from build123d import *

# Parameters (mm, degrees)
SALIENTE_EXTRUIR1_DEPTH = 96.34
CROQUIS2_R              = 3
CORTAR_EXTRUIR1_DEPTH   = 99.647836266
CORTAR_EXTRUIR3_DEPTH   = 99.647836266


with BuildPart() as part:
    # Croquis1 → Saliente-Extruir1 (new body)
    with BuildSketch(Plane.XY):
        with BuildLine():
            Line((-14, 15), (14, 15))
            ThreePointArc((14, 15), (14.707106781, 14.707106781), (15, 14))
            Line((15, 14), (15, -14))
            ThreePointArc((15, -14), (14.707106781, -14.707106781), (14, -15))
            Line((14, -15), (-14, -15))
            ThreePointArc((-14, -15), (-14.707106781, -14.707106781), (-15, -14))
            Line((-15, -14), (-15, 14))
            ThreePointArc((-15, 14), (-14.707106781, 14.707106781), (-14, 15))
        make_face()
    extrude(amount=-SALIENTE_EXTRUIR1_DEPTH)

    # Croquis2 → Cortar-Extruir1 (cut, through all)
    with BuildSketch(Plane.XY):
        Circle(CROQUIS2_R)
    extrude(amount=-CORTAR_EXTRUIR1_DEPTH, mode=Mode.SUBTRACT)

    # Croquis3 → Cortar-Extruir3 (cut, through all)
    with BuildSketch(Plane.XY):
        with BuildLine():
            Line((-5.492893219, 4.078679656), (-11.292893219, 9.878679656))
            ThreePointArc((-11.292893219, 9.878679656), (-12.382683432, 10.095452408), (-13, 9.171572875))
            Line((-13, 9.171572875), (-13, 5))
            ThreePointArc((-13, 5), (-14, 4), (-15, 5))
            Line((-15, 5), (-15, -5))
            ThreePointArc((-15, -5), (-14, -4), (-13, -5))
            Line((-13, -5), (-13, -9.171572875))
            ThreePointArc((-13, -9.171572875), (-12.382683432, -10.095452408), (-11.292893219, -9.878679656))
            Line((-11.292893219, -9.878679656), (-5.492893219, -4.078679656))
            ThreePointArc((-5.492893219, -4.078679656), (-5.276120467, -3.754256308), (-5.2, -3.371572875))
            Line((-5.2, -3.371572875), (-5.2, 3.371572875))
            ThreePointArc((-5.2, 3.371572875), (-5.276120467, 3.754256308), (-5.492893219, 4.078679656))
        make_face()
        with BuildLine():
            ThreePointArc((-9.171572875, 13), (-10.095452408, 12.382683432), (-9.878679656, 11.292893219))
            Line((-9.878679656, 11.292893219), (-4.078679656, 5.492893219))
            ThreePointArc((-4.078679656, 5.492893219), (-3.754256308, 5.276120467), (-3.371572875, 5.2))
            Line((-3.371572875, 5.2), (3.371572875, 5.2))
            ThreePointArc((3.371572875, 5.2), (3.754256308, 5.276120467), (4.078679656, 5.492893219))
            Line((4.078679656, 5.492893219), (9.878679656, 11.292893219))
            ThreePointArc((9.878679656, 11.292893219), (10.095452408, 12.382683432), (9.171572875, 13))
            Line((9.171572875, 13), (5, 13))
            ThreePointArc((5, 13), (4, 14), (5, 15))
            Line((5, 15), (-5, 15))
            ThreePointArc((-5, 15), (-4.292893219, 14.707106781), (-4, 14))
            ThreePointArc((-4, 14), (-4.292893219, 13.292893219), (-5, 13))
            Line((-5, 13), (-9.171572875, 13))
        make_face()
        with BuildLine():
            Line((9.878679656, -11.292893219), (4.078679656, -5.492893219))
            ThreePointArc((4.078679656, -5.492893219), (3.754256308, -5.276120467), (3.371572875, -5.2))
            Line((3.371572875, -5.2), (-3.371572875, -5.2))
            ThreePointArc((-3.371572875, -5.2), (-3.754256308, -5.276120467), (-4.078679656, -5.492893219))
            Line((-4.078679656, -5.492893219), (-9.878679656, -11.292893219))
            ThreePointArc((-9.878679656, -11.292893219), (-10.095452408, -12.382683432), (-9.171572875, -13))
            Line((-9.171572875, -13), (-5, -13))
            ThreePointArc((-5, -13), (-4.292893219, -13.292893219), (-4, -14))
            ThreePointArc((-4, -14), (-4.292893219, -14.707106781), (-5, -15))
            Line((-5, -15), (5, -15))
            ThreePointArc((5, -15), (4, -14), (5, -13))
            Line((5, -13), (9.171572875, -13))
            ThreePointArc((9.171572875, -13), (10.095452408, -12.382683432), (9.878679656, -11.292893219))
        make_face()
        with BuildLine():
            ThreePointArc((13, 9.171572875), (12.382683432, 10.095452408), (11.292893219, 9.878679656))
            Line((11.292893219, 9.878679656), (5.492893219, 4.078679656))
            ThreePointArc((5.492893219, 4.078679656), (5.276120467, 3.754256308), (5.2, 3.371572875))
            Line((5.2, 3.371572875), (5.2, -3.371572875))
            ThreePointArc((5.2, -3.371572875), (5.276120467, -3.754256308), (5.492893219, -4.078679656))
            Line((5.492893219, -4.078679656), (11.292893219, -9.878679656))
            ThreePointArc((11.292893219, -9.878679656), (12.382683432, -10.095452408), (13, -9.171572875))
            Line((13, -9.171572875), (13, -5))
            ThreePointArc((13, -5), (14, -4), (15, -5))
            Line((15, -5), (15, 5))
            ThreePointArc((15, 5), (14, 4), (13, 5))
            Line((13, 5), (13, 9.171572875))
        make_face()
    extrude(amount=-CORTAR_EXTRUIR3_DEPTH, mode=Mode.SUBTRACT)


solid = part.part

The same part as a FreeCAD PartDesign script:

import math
import FreeCAD as App
import Part
import Sketcher

V = App.Vector
Q = App.Units.Quantity

doc = App.newDocument("Part")
body = doc.addObject("PartDesign::Body", "Body")

# Sketch on XY plane
sketch1 = body.newObject("Sketcher::SketchObject", "Sketch")
sketch1.AttachmentSupport = (doc.getObject("XY_Plane"), [""])
sketch1.MapMode = "FlatFace"
sketch1.addGeometry([
    Part.LineSegment(V(14, 15, 0), V(-14, 15, 0)),  # 0
    Part.ArcOfCircle(Part.Circle(V(-14, 14, 0), V(0, 0, 1), 1), math.radians(90), math.radians(180)),  # 1
    Part.LineSegment(V(-15, 14, 0), V(-15, -14, 0)),  # 2
    Part.ArcOfCircle(Part.Circle(V(-14, -14, 0), V(0, 0, 1), 1), math.radians(-180), math.radians(-90)),  # 3
    Part.LineSegment(V(-14, -15, 0), V(14, -15, 0)),  # 4
    Part.ArcOfCircle(Part.Circle(V(14, -14, 0), V(0, 0, 1), 1), math.radians(-90), math.radians(0)),  # 5
    Part.LineSegment(V(15, -14, 0), V(15, 14, 0)),  # 6
    Part.ArcOfCircle(Part.Circle(V(14, 14, 0), V(0, 0, 1), 1), math.radians(0), math.radians(90)),  # 7
], False)
sketch1.addConstraint([
    Sketcher.Constraint("Tangent", 0, 2, 1, 1),
    Sketcher.Constraint("Tangent", 1, 2, 2, 1),
    Sketcher.Constraint("Tangent", 2, 2, 3, 1),
    Sketcher.Constraint("Tangent", 3, 2, 4, 1),
    Sketcher.Constraint("Tangent", 4, 2, 5, 1),
    Sketcher.Constraint("Tangent", 5, 2, 6, 1),
    Sketcher.Constraint("Tangent", 6, 2, 7, 1),
    Sketcher.Constraint("Tangent", 7, 2, 0, 1),
    Sketcher.Constraint("Horizontal", 0),
    Sketcher.Constraint("Vertical", 2),
    Sketcher.Constraint("Horizontal", 4),
    Sketcher.Constraint("Vertical", 6),
    Sketcher.Constraint("Equal", 1, 3),
    Sketcher.Constraint("Equal", 3, 5),
    Sketcher.Constraint("Equal", 5, 7),
    Sketcher.Constraint("Symmetric", 1, 3, 5, 3, -1, 1),
    Sketcher.Constraint("Equal", 4, 2),
    Sketcher.Constraint("Radius", 1, Q("1 mm")),
    Sketcher.Constraint("DistanceX", 0, 2, 0, 1, Q("28 mm")),
])
pad1 = body.newObject("PartDesign::Pad", "Pad")
pad1.Profile = sketch1
pad1.Length = 96.34
pad1.Reversed = True

# Sketch on XY plane
sketch2 = body.newObject("Sketcher::SketchObject", "Sketch001")
sketch2.AttachmentSupport = (doc.getObject("XY_Plane"), [""])
sketch2.MapMode = "FlatFace"
sketch2.addGeometry(Part.Circle(V(0, 0, 0), V(0, 0, 1), 3), False)
sketch2.addConstraint([
    Sketcher.Constraint("Coincident", 0, 3, -1, 1),
    Sketcher.Constraint("Diameter", 0, Q("6 mm")),
])
pocket1 = body.newObject("PartDesign::Pocket", "Pocket")
pocket1.Profile = sketch2
pocket1.Type = "ThroughAll"

# Sketch on XY plane
sketch3 = body.newObject("Sketcher::SketchObject", "Sketch002")
sketch3.AttachmentSupport = (doc.getObject("XY_Plane"), [""])
sketch3.MapMode = "FlatFace"
sketch3.addGeometry([
    Part.LineSegment(V(-5.5, 4.1, 0), V(-11.3, 9.9, 0)),  # 0
    Part.ArcOfCircle(Part.Circle(V(-12, 9.2, 0), V(0, 0, 1), 1), math.radians(45), math.radians(180)),  # 1
    Part.LineSegment(V(-13, 9.2, 0), V(-13, 5, 0)),  # 2
    Part.ArcOfCircle(Part.Circle(V(-14, 5, 0), V(0, 0, 1), 1), math.radians(180), math.radians(360)),  # 3
    Part.LineSegment(V(-15, 5, 0), V(-15, -5, 0)),  # 4
    Part.ArcOfCircle(Part.Circle(V(-14, -5, 0), V(0, 0, 1), 1), math.radians(0), math.radians(180)),  # 5
    Part.LineSegment(V(-13, -5, 0), V(-13, -9.2, 0)),  # 6
    Part.ArcOfCircle(Part.Circle(V(-12, -9.2, 0), V(0, 0, 1), 1), math.radians(180), math.radians(315)),  # 7
    Part.LineSegment(V(-11.3, -9.9, 0), V(-5.5, -4.1, 0)),  # 8
    Part.ArcOfCircle(Part.Circle(V(-6.2, -3.4, 0), V(0, 0, 1), 1), math.radians(-45), math.radians(0)),  # 9
    Part.LineSegment(V(-5.2, -3.4, 0), V(-5.2, 3.4, 0)),  # 10
    Part.ArcOfCircle(Part.Circle(V(-6.2, 3.4, 0), V(0, 0, 1), 1), math.radians(0), math.radians(45)),  # 11
    Part.ArcOfCircle(Part.Circle(V(-9.2, 12, 0), V(0, 0, 1), 1), math.radians(90), math.radians(225)),  # 12
    Part.LineSegment(V(-9.9, 11.3, 0), V(-4.1, 5.5, 0)),  # 13
    Part.ArcOfCircle(Part.Circle(V(-3.4, 6.2, 0), V(0, 0, 1), 1), math.radians(-135), math.radians(-90)),  # 14
    Part.LineSegment(V(-3.4, 5.2, 0), V(3.4, 5.2, 0)),  # 15
    Part.ArcOfCircle(Part.Circle(V(3.4, 6.2, 0), V(0, 0, 1), 1), math.radians(-90), math.radians(-45)),  # 16
    Part.LineSegment(V(4.1, 5.5, 0), V(9.9, 11.3, 0)),  # 17
    Part.ArcOfCircle(Part.Circle(V(9.2, 12, 0), V(0, 0, 1), 1), math.radians(-45), math.radians(90)),  # 18
    Part.LineSegment(V(9.2, 13, 0), V(5, 13, 0)),  # 19
    Part.ArcOfCircle(Part.Circle(V(5, 14, 0), V(0, 0, 1), 1), math.radians(90), math.radians(270)),  # 20
    Part.LineSegment(V(5, 15, 0), V(-5, 15, 0)),  # 21
    Part.ArcOfCircle(Part.Circle(V(-5, 14, 0), V(0, 0, 1), 1), math.radians(0), math.radians(90)),  # 22
    Part.ArcOfCircle(Part.Circle(V(-5, 14, 0), V(0, 0, 1), 1), math.radians(-90), math.radians(0)),  # 23
    Part.LineSegment(V(-5, 13, 0), V(-9.2, 13, 0)),  # 24
    Part.LineSegment(V(9.9, -11.3, 0), V(4.1, -5.5, 0)),  # 25
    Part.ArcOfCircle(Part.Circle(V(3.4, -6.2, 0), V(0, 0, 1), 1), math.radians(45), math.radians(90)),  # 26
    Part.LineSegment(V(3.4, -5.2, 0), V(-3.4, -5.2, 0)),  # 27
    Part.ArcOfCircle(Part.Circle(V(-3.4, -6.2, 0), V(0, 0, 1), 1), math.radians(90), math.radians(135)),  # 28
    Part.LineSegment(V(-4.1, -5.5, 0), V(-9.9, -11.3, 0)),  # 29
    Part.ArcOfCircle(Part.Circle(V(-9.2, -12, 0), V(0, 0, 1), 1), math.radians(135), math.radians(270)),  # 30
    Part.LineSegment(V(-9.2, -13, 0), V(-5, -13, 0)),  # 31
    Part.ArcOfCircle(Part.Circle(V(-5, -14, 0), V(0, 0, 1), 1), math.radians(0), math.radians(90)),  # 32
    Part.ArcOfCircle(Part.Circle(V(-5, -14, 0), V(0, 0, 1), 1), math.radians(-90), math.radians(0)),  # 33
    Part.LineSegment(V(-5, -15, 0), V(5, -15, 0)),  # 34
    Part.ArcOfCircle(Part.Circle(V(5, -14, 0), V(0, 0, 1), 1), math.radians(90), math.radians(270)),  # 35
    Part.LineSegment(V(5, -13, 0), V(9.2, -13, 0)),  # 36
    Part.ArcOfCircle(Part.Circle(V(9.2, -12, 0), V(0, 0, 1), 1), math.radians(-90), math.radians(45)),  # 37
    Part.ArcOfCircle(Part.Circle(V(12, 9.2, 0), V(0, 0, 1), 1), math.radians(0), math.radians(135)),  # 38
    Part.LineSegment(V(11.3, 9.9, 0), V(5.5, 4.1, 0)),  # 39
    Part.ArcOfCircle(Part.Circle(V(6.2, 3.4, 0), V(0, 0, 1), 1), math.radians(135), math.radians(180)),  # 40
    Part.LineSegment(V(5.2, 3.4, 0), V(5.2, -3.4, 0)),  # 41
    Part.ArcOfCircle(Part.Circle(V(6.2, -3.4, 0), V(0, 0, 1), 1), math.radians(180), math.radians(225)),  # 42
    Part.LineSegment(V(5.5, -4.1, 0), V(11.3, -9.9, 0)),  # 43
    Part.ArcOfCircle(Part.Circle(V(12, -9.2, 0), V(0, 0, 1), 1), math.radians(-135), math.radians(0)),  # 44
    Part.LineSegment(V(13, -9.2, 0), V(13, -5, 0)),  # 45
    Part.ArcOfCircle(Part.Circle(V(14, -5, 0), V(0, 0, 1), 1), math.radians(0), math.radians(180)),  # 46
    Part.LineSegment(V(15, -5, 0), V(15, 5, 0)),  # 47
    Part.ArcOfCircle(Part.Circle(V(14, 5, 0), V(0, 0, 1), 1), math.radians(180), math.radians(360)),  # 48
    Part.LineSegment(V(13, 5, 0), V(13, 9.2, 0)),  # 49
], False)
sketch3.addConstraint([
    Sketcher.Constraint("Tangent", 0, 2, 1, 1),
    Sketcher.Constraint("Tangent", 1, 2, 2, 1),
    Sketcher.Constraint("Tangent", 2, 2, 3, 2),
    Sketcher.Constraint("Tangent", 3, 1, 4, 1),
    Sketcher.Constraint("Tangent", 4, 2, 5, 2),
    Sketcher.Constraint("Tangent", 5, 1, 6, 1),
    Sketcher.Constraint("Tangent", 6, 2, 7, 1),
    Sketcher.Constraint("Tangent", 7, 2, 8, 1),
    Sketcher.Constraint("Tangent", 8, 2, 9, 1),
    Sketcher.Constraint("Tangent", 9, 2, 10, 1),
    Sketcher.Constraint("Tangent", 10, 2, 11, 1),
    Sketcher.Constraint("Tangent", 11, 2, 0, 1),
    Sketcher.Constraint("Tangent", 12, 2, 13, 1),
    Sketcher.Constraint("Tangent", 13, 2, 14, 1),
    Sketcher.Constraint("Tangent", 14, 2, 15, 1),
    Sketcher.Constraint("Tangent", 15, 2, 16, 1),
    Sketcher.Constraint("Tangent", 16, 2, 17, 1),
    Sketcher.Constraint("Tangent", 17, 2, 18, 1),
    Sketcher.Constraint("Tangent", 18, 2, 19, 1),
    Sketcher.Constraint("Tangent", 19, 2, 20, 2),
    Sketcher.Constraint("Tangent", 20, 1, 21, 1),
    Sketcher.Constraint("Tangent", 21, 2, 22, 2),
    Sketcher.Constraint("Tangent", 22, 1, 23, 2),
    Sketcher.Constraint("Tangent", 23, 1, 24, 1),
    Sketcher.Constraint("Tangent", 24, 2, 12, 1),
    Sketcher.Constraint("Tangent", 25, 2, 26, 1),
    Sketcher.Constraint("Tangent", 26, 2, 27, 1),
    Sketcher.Constraint("Tangent", 27, 2, 28, 1),
    Sketcher.Constraint("Tangent", 28, 2, 29, 1),
    Sketcher.Constraint("Tangent", 29, 2, 30, 1),
    Sketcher.Constraint("Tangent", 30, 2, 31, 1),
    Sketcher.Constraint("Tangent", 31, 2, 32, 2),
    Sketcher.Constraint("Tangent", 32, 1, 33, 2),
    Sketcher.Constraint("Tangent", 33, 1, 34, 1),
    Sketcher.Constraint("Tangent", 34, 2, 35, 2),
    Sketcher.Constraint("Tangent", 35, 1, 36, 1),
    Sketcher.Constraint("Tangent", 36, 2, 37, 1),
    Sketcher.Constraint("Tangent", 37, 2, 25, 1),
    Sketcher.Constraint("Tangent", 38, 2, 39, 1),
    Sketcher.Constraint("Tangent", 39, 2, 40, 1),
    Sketcher.Constraint("Tangent", 40, 2, 41, 1),
    Sketcher.Constraint("Tangent", 41, 2, 42, 1),
    Sketcher.Constraint("Tangent", 42, 2, 43, 1),
    Sketcher.Constraint("Tangent", 43, 2, 44, 1),
    Sketcher.Constraint("Tangent", 44, 2, 45, 1),
    Sketcher.Constraint("Tangent", 45, 2, 46, 2),
    Sketcher.Constraint("Tangent", 46, 1, 47, 1),
    Sketcher.Constraint("Tangent", 47, 2, 48, 2),
    Sketcher.Constraint("Tangent", 48, 1, 49, 1),
    Sketcher.Constraint("Tangent", 49, 2, 38, 1),
    Sketcher.Constraint("Vertical", 2),
    Sketcher.Constraint("Vertical", 4),
    Sketcher.Constraint("Vertical", 6),
    Sketcher.Constraint("Vertical", 10),
    Sketcher.Constraint("Horizontal", 15),
    Sketcher.Constraint("Horizontal", 19),
    Sketcher.Constraint("Horizontal", 21),
    Sketcher.Constraint("Horizontal", 24),
    Sketcher.Constraint("Horizontal", 27),
    Sketcher.Constraint("Horizontal", 31),
    Sketcher.Constraint("Horizontal", 34),
    Sketcher.Constraint("Horizontal", 36),
    Sketcher.Constraint("Vertical", 41),
    Sketcher.Constraint("Vertical", 45),
    Sketcher.Constraint("Vertical", 47),
    Sketcher.Constraint("Vertical", 49),
    Sketcher.Constraint("Equal", 1, 3),
    Sketcher.Constraint("Equal", 3, 5),
    Sketcher.Constraint("Equal", 5, 7),
    Sketcher.Constraint("Equal", 7, 9),
    Sketcher.Constraint("Equal", 9, 11),
    Sketcher.Constraint("Equal", 11, 12),
    Sketcher.Constraint("Equal", 12, 14),
    Sketcher.Constraint("Equal", 14, 16),
    Sketcher.Constraint("Equal", 16, 18),
    Sketcher.Constraint("Equal", 18, 20),
    Sketcher.Constraint("Equal", 20, 22),
    Sketcher.Constraint("Equal", 22, 23),
    Sketcher.Constraint("Equal", 23, 26),
    Sketcher.Constraint("Equal", 26, 28),
    Sketcher.Constraint("Equal", 28, 30),
    Sketcher.Constraint("Equal", 30, 32),
    Sketcher.Constraint("Equal", 32, 33),
    Sketcher.Constraint("Equal", 33, 35),
    Sketcher.Constraint("Equal", 35, 37),
    Sketcher.Constraint("Equal", 37, 38),
    Sketcher.Constraint("Equal", 38, 40),
    Sketcher.Constraint("Equal", 40, 42),
    Sketcher.Constraint("Equal", 42, 44),
    Sketcher.Constraint("Equal", 44, 46),
    Sketcher.Constraint("Equal", 46, 48),
    Sketcher.Constraint("Symmetric", 14, 3, 26, 3, -1, 1),
    Sketcher.Constraint("Symmetric", 18, 3, 30, 3, -1, 1),
    Sketcher.Constraint("Symmetric", 7, 3, 38, 3, -1, 1),
    Sketcher.Constraint("Symmetric", 9, 3, 40, 3, -1, 1),
    Sketcher.Constraint("Symmetric", 11, 2, 42, 2, -1, 1),
    Sketcher.Constraint("Symmetric", 13, 2, 16, 2, -2),
    Sketcher.Constraint("Symmetric", 25, 2, 28, 2, -2),
    Sketcher.Constraint("Symmetric", 0, 2, 38, 2, -2),
    Sketcher.Constraint("Symmetric", 22, 1, 32, 1, -1),
    Sketcher.Constraint("Perpendicular", 0, 8),
    Sketcher.Constraint("Perpendicular", 8, 13),
    Sketcher.Constraint("Horizontal", 5, 3, 46, 3),
    Sketcher.Constraint("Horizontal", 3, 3, 48, 3),
    Sketcher.Constraint("Horizontal", 23, 3, 22, 1),
    Sketcher.Constraint("Vertical", 20, 3, 35, 3),
    Sketcher.Constraint("Equal", 19, 24),
    Sketcher.Constraint("Equal", 36, 2),
    Sketcher.Constraint("Equal", 34, 4),
    Sketcher.Constraint("Equal", 2, 6),
    Sketcher.Constraint("Equal", 27, 10),
    Sketcher.Constraint("Radius", 1, Q("1 mm")),
    Sketcher.Constraint("DistanceX", 21, 2, 21, 1, Q("10 mm")),
    Sketcher.Constraint("DistanceX", 1, 3, -1, 1, Q("12 mm")),
    Sketcher.Constraint("DistanceY", -1, 1, 12, 3, Q("12 mm")),
    Sketcher.Constraint("DistanceX", 9, 3, -1, 1, Q("6.2 mm")),
    Sketcher.Constraint("DistanceX", 15, 1, 15, 2, Q("6.743146 mm")),
])
pocket2 = body.newObject("PartDesign::Pocket", "Pocket001")
pocket2.Profile = sketch3
pocket2.Type = "ThroughAll"

doc.recompute()
